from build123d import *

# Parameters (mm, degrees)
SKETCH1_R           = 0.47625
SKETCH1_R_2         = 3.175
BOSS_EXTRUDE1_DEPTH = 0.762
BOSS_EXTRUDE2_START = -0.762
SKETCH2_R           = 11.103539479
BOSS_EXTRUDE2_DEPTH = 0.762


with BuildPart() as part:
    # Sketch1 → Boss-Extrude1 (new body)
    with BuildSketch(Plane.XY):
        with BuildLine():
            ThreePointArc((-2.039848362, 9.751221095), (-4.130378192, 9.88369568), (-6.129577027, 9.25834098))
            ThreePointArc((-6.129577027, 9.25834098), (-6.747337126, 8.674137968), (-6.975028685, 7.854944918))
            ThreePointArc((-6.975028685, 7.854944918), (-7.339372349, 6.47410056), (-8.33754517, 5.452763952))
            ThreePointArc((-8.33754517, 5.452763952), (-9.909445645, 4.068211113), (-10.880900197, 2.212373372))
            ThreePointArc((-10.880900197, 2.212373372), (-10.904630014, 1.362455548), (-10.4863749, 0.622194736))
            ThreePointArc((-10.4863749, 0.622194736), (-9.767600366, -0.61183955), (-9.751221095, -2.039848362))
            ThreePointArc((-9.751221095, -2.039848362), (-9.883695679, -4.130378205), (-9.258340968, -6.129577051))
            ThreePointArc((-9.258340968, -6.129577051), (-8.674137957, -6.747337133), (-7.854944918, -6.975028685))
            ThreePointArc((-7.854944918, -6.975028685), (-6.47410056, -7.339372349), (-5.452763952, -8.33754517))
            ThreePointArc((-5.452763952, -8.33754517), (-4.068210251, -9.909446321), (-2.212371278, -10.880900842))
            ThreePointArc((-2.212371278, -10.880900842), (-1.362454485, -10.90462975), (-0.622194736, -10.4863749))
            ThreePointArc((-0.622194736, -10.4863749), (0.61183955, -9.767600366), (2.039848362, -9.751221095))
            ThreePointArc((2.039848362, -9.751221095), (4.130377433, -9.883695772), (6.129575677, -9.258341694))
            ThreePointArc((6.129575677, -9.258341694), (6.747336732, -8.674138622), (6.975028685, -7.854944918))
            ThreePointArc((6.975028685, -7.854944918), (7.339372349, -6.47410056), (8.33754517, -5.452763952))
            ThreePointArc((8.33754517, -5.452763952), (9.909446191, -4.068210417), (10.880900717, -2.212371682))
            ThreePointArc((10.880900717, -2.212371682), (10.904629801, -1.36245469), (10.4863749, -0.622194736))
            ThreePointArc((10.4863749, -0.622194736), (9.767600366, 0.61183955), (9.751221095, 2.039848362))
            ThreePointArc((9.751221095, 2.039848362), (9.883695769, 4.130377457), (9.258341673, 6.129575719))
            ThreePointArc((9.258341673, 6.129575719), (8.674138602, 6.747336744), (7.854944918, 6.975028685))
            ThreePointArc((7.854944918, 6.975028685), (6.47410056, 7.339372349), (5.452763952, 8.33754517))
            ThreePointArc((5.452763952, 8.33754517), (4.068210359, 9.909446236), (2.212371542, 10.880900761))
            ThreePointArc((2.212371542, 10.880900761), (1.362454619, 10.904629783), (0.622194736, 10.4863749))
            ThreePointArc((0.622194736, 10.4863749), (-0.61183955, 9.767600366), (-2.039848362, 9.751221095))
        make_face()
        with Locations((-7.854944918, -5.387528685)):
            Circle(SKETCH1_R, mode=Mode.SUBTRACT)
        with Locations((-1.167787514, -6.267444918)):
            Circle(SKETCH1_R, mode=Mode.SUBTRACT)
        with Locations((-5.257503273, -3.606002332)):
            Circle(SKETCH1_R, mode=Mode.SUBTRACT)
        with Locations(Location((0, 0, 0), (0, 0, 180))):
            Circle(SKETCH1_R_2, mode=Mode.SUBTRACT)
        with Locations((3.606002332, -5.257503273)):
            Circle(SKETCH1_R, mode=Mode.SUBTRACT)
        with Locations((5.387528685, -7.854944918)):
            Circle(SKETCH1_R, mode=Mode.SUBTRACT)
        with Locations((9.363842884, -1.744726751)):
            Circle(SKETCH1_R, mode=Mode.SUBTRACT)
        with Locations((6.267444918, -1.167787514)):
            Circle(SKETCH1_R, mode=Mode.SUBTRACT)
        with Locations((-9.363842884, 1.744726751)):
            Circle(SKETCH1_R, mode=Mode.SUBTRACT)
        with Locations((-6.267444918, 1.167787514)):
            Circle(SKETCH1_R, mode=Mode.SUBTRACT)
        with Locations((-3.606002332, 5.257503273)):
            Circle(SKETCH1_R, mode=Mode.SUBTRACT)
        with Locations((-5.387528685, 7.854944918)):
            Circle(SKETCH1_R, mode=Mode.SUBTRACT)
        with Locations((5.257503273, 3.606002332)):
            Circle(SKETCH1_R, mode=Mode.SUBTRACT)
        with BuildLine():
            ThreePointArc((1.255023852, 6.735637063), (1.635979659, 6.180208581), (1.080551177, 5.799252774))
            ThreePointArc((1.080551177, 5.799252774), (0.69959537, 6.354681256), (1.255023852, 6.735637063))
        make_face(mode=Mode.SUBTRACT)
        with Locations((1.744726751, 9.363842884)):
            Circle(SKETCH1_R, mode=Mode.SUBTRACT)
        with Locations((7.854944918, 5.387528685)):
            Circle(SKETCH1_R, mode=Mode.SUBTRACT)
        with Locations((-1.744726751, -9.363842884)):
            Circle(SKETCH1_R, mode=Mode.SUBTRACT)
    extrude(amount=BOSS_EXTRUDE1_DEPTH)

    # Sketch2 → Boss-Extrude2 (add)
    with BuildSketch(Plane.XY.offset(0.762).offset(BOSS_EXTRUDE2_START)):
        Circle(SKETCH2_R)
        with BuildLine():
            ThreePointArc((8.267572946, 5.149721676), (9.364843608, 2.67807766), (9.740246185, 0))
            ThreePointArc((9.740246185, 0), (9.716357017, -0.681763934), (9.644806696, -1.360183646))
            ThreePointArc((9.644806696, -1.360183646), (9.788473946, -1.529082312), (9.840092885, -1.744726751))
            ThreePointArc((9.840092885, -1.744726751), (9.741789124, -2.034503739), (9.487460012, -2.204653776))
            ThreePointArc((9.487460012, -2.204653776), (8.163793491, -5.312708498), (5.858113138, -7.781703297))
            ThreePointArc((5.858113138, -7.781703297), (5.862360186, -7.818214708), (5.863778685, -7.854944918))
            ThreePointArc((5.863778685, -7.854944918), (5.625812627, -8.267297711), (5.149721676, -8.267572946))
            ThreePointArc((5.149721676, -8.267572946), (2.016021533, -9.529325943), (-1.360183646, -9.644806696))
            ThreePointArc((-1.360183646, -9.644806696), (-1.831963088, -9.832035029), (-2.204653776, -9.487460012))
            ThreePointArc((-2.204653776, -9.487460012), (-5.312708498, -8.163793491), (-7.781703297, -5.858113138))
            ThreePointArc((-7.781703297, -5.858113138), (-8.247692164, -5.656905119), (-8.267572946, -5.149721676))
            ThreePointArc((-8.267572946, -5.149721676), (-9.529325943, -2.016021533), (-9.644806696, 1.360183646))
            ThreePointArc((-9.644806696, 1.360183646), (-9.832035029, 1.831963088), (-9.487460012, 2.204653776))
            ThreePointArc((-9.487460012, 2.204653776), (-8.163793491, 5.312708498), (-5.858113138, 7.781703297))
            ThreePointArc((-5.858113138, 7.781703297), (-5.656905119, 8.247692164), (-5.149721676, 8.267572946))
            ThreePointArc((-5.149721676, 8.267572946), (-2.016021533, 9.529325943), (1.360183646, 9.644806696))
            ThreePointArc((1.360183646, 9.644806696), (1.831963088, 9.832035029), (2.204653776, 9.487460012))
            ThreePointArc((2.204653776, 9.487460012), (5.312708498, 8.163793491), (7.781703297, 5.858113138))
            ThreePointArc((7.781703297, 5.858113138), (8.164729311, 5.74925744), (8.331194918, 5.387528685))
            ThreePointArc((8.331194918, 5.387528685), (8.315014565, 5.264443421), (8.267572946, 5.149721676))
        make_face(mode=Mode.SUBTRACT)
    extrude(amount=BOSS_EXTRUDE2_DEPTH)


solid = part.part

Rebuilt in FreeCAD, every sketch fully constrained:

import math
import FreeCAD as App
import Part
import Sketcher

V = App.Vector
Q = App.Units.Quantity

doc = App.newDocument("Part")
params = doc.addObject("Spreadsheet::Sheet", "Params")
for row, (alias, value) in enumerate([
    ("sketch1_diameter", "0.25 in"),
    ("sketch1_radius", "0.0625 in"),
    ("pad1_length", "0.03 in"),
    ("pad2_length", "0.03 in"),
], start=1):
    params.set(f"A{row}", alias)
    params.set(f"B{row}", "=" + value)
    params.setAlias(f"B{row}", alias)

body = doc.addObject("PartDesign::Body", "Body")

# Sketch on XY plane
sketch1 = body.newObject("Sketcher::SketchObject", "Sketch")
sketch1.AttachmentSupport = (doc.getObject("XY_Plane"), [""])
sketch1.MapMode = "FlatFace"
sketch1.addGeometry([
    Part.ArcOfCircle(Part.Circle(V(-3.44, 4.18, 0), V(0, 0, 1), 5.75), math.radians(76), math.radians(118)),  # 0
    Part.ArcOfCircle(Part.Circle(V(-5.39, 7.85, 0), V(0, 0, 1), 1.59), math.radians(118), math.radians(180)),  # 1
    Part.ArcOfCircle(Part.Circle(V(-9.77, 7.85, 0), V(0, 0, 1), 2.8), math.radians(-59), math.radians(0)),  # 2
    Part.ArcOfCircle(Part.Circle(V(-5.39, 0.52, 0), V(0, 0, 1), 5.75), math.radians(121), math.radians(163)),  # 3
    Part.ArcOfCircle(Part.Circle(V(-9.36, 1.74, 0), V(0, 0, 1), 1.59), math.radians(163), math.radians(225)),  # 4
    Part.ArcOfCircle(Part.Circle(V(-12.47, -1.36, 0), V(0, 0, 1), 2.8), math.radians(-14), math.radians(45)),  # 5
    Part.ArcOfCircle(Part.Circle(V(-4.18, -3.44, 0), V(0, 0, 1), 5.75), math.radians(166), math.radians(208)),  # 6
    Part.ArcOfCircle(Part.Circle(V(-7.85, -5.39, 0), V(0, 0, 1), 1.59), math.radians(-152), math.radians(-90)),  # 7
    Part.ArcOfCircle(Part.Circle(V(-7.85, -9.77, 0), V(0, 0, 1), 2.8), math.radians(31), math.radians(90)),  # 8
    Part.ArcOfCircle(Part.Circle(V(-0.52, -5.39, 0), V(0, 0, 1), 5.75), math.radians(-149), math.radians(-107)),  # 9
    Part.ArcOfCircle(Part.Circle(V(-1.74, -9.36, 0), V(0, 0, 1), 1.59), math.radians(-107), math.radians(-45)),  # 10
    Part.ArcOfCircle(Part.Circle(V(1.36, -12.47, 0), V(0, 0, 1), 2.8), math.radians(76), math.radians(135)),  # 11
    Part.ArcOfCircle(Part.Circle(V(3.44, -4.18, 0), V(0, 0, 1), 5.75), math.radians(-104), math.radians(-62)),  # 12
    Part.ArcOfCircle(Part.Circle(V(5.39, -7.85, 0), V(0, 0, 1), 1.59), math.radians(-62), math.radians(0)),  # 13
    Part.ArcOfCircle(Part.Circle(V(9.77, -7.85, 0), V(0, 0, 1), 2.8), math.radians(121), math.radians(180)),  # 14
    Part.ArcOfCircle(Part.Circle(V(5.39, -0.52, 0), V(0, 0, 1), 5.75), math.radians(-59), math.radians(-17)),  # 15
    Part.ArcOfCircle(Part.Circle(V(9.36, -1.74, 0), V(0, 0, 1), 1.59), math.radians(-17), math.radians(45)),  # 16
    Part.ArcOfCircle(Part.Circle(V(12.47, 1.36, 0), V(0, 0, 1), 2.8), math.radians(166), math.radians(225)),  # 17
    Part.ArcOfCircle(Part.Circle(V(4.18, 3.44, 0), V(0, 0, 1), 5.75), math.radians(-14), math.radians(28)),  # 18
    Part.ArcOfCircle(Part.Circle(V(7.85, 5.39, 0), V(0, 0, 1), 1.59), math.radians(28), math.radians(90)),  # 19
    Part.ArcOfCircle(Part.Circle(V(7.85, 9.77, 0), V(0, 0, 1), 2.8), math.radians(-149), math.radians(-90)),  # 20
    Part.ArcOfCircle(Part.Circle(V(0.52, 5.39, 0), V(0, 0, 1), 5.75), math.radians(31), math.radians(73)),  # 21
    Part.ArcOfCircle(Part.Circle(V(1.74, 9.36, 0), V(0, 0, 1), 1.59), math.radians(73), math.radians(135)),  # 22
    Part.ArcOfCircle(Part.Circle(V(-1.36, 12.47, 0), V(0, 0, 1), 2.8), math.radians(-104), math.radians(-45)),  # 23
    Part.Circle(V(-7.85, -5.39, 0), V(0, 0, 1), 0.48),  # 24
    Part.Circle(V(-1.74, -9.36, 0), V(0, 0, 1), 0.48),  # 25
    Part.Circle(V(-1.17, -6.27, 0), V(0, 0, 1), 0.48),  # 26
    Part.Circle(V(-5.26, -3.61, 0), V(0, 0, 1), 0.48),  # 27
    Part.Circle(V(3.61, -5.26, 0), V(0, 0, 1), 0.48),  # 28
    Part.Circle(V(5.39, -7.85, 0), V(0, 0, 1), 0.48),  # 29
    Part.Circle(V(6.27, -1.17, 0), V(0, 0, 1), 0.48),  # 30
    Part.Circle(V(9.36, -1.74, 0), V(0, 0, 1), 0.48),  # 31
    Part.Circle(V(-9.36, 1.74, 0), V(0, 0, 1), 0.48),  # 32
    Part.Circle(V(-6.27, 1.17, 0), V(0, 0, 1), 0.48),  # 33
    Part.Circle(V(-5.39, 7.85, 0), V(0, 0, 1), 0.48),  # 34
    Part.Circle(V(-3.61, 5.26, 0), V(0, 0, 1), 0.48),  # 35
    Part.Circle(V(0, 0, 0), V(0, 0, 1), 3.17),  # 36
    Part.Circle(V(5.26, 3.61, 0), V(0, 0, 1), 0.48),  # 37
    Part.Circle(V(1.17, 6.27, 0), V(0, 0, 1), 0.48),  # 38
    Part.Circle(V(1.74, 9.36, 0), V(0, 0, 1), 0.48),  # 39
    Part.Circle(V(7.85, 5.39, 0), V(0, 0, 1), 0.48),  # 40
], False)
sketch1.addConstraint([
    Sketcher.Constraint("Tangent", 0, 2, 1, 1),
    Sketcher.Constraint("Tangent", 1, 2, 2, 2),
    Sketcher.Constraint("Tangent", 2, 1, 3, 1),
    Sketcher.Constraint("Tangent", 3, 2, 4, 1),
    Sketcher.Constraint("Tangent", 4, 2, 5, 2),
    Sketcher.Constraint("Tangent", 5, 1, 6, 1),
    Sketcher.Constraint("Tangent", 6, 2, 7, 1),
    Sketcher.Constraint("Tangent", 7, 2, 8, 2),
    Sketcher.Constraint("Tangent", 8, 1, 9, 1),
    Sketcher.Constraint("Tangent", 9, 2, 10, 1),
    Sketcher.Constraint("Tangent", 10, 2, 11, 2),
    Sketcher.Constraint("Tangent", 11, 1, 12, 1),
    Sketcher.Constraint("Tangent", 12, 2, 13, 1),
    Sketcher.Constraint("Tangent", 13, 2, 14, 2),
    Sketcher.Constraint("Tangent", 14, 1, 15, 1),
    Sketcher.Constraint("Tangent", 15, 2, 16, 1),
    Sketcher.Constraint("Tangent", 16, 2, 17, 2),
    Sketcher.Constraint("Tangent", 17, 1, 18, 1),
    Sketcher.Constraint("Tangent", 18, 2, 19, 1),
    Sketcher.Constraint("Tangent", 19, 2, 20, 2),
    Sketcher.Constraint("Tangent", 20, 1, 21, 1),
    Sketcher.Constraint("Tangent", 21, 2, 22, 1),
    Sketcher.Constraint("Tangent", 22, 2, 23, 2),
    Sketcher.Constraint("Tangent", 23, 1, 0, 1),
    Sketcher.Constraint("Coincident", 36, 3, -1, 1),
    Sketcher.Constraint("Coincident", 24, 3, 7, 3),
    Sketcher.Constraint("Coincident", 25, 3, 10, 3),
    Sketcher.Constraint("Coincident", 29, 3, 13, 3),
    Sketcher.Constraint("Coincident", 31, 3, 16, 3),
    Sketcher.Constraint("Coincident", 32, 3, 4, 3),
    Sketcher.Constraint("Coincident", 34, 3, 1, 3),
    Sketcher.Constraint("Coincident", 39, 3, 22, 3),
    Sketcher.Constraint("Coincident", 40, 3, 19, 3),
    Sketcher.Constraint("Equal", 0, 3),
    Sketcher.Constraint("Equal", 1, 4),
    Sketcher.Constraint("Equal", 2, 5),
    Sketcher.Constraint("Equal", 3, 6),
    Sketcher.Constraint("Equal", 4, 7),
    Sketcher.Constraint("Equal", 5, 8),
    Sketcher.Constraint("Equal", 6, 9),
    Sketcher.Constraint("Equal", 7, 10),
    Sketcher.Constraint("Equal", 8, 11),
    Sketcher.Constraint("Equal", 9, 12),
    Sketcher.Constraint("Equal", 10, 13),
    Sketcher.Constraint("Equal", 11, 14),
    Sketcher.Constraint("Equal", 12, 15),
    Sketcher.Constraint("Equal", 13, 16),
    Sketcher.Constraint("Equal", 14, 17),
    Sketcher.Constraint("Equal", 15, 18),
    Sketcher.Constraint("Equal", 16, 19),
    Sketcher.Constraint("Equal", 17, 20),
    Sketcher.Constraint("Equal", 18, 21),
    Sketcher.Constraint("Equal", 19, 22),
    Sketcher.Constraint("Equal", 20, 23),
    Sketcher.Constraint("Equal", 24, 25),
    Sketcher.Constraint("Equal", 25, 26),
    Sketcher.Constraint("Equal", 26, 27),
    Sketcher.Constraint("Equal", 27, 28),
    Sketcher.Constraint("Equal", 28, 29),
    Sketcher.Constraint("Equal", 29, 30),
    Sketcher.Constraint("Equal", 30, 31),
    Sketcher.Constraint("Equal", 31, 32),
    Sketcher.Constraint("Equal", 32, 33),
    Sketcher.Constraint("Equal", 33, 34),
    Sketcher.Constraint("Equal", 34, 35),
    Sketcher.Constraint("Equal", 35, 37),
    Sketcher.Constraint("Equal", 37, 38),
    Sketcher.Constraint("Equal", 38, 39),
    Sketcher.Constraint("Equal", 39, 40),
    Sketcher.Constraint("Symmetric", 0, 3, 12, 3, -1, 1),
    Sketcher.Constraint("Symmetric", 2, 3, 14, 3, -1, 1),
    Sketcher.Constraint("Symmetric", 4, 3, 16, 3, -1, 1),
    Sketcher.Constraint("Symmetric", 6, 3, 18, 3, -1, 1),
    Sketcher.Constraint("Symmetric", 8, 3, 20, 3, -1, 1),
    Sketcher.Constraint("Symmetric", 10, 3, 22, 3, -1, 1),
    Sketcher.Constraint("Symmetric", 30, 3, 33, 3, -1, 1),
    Sketcher.Constraint("Symmetric", 28, 3, 35, 3, -1, 1),
    Sketcher.Constraint("Symmetric", 27, 3, 37, 3, -1, 1),
    Sketcher.Constraint("Symmetric", 26, 3, 38, 3, -1, 1),
    Sketcher.Constraint("Horizontal", 1, 3, 2, 3),
    Sketcher.Constraint("Horizontal", 7, 3, 9, 3),
    Sketcher.Constraint("Vertical", 1, 3, 3, 3),
    Sketcher.Constraint("Vertical", 7, 3, 8, 3),
    Sketcher.Constraint("Diameter", 36, Q("0.25 in")),
    Sketcher.Constraint("Radius", 1, Q("0.0625 in")),
    Sketcher.Constraint("Diameter", 24, Q("0.0375 in")),
    Sketcher.Constraint("Radius", 9, 5.748448),
    Sketcher.Constraint("Radius", 2, 2.798838),
    Sketcher.Constraint("DistanceX", 3, 2, -1, 1, 10.8809),
    Sketcher.Constraint("DistanceY", 9, 2, -1, 1, 10.880901),
    Sketcher.Constraint("DistanceX", 0, 3, -1, 1, 3.442572),
    Sketcher.Constraint("DistanceX", 1, 3, -1, 1, 5.387529),
    Sketcher.Constraint("DistanceX", 5, 3, -1, 1, 12.465452),
    Sketcher.Constraint("DistanceY", 6, 3, -1, 1, 3.442572),
    Sketcher.Constraint("DistanceY", 7, 3, -1, 1, 5.387529),
    Sketcher.Constraint("DistanceY", 11, 3, -1, 1, 12.465452),
    Sketcher.Constraint("DistanceX", 26, 3, -1, 1, 1.167788),
    Sketcher.Constraint("DistanceY", 26, 3, -1, 1, 6.267445),
    Sketcher.Constraint("DistanceX", 27, 3, -1, 1, 5.257503),
    Sketcher.Constraint("DistanceY", 27, 3, -1, 1, 3.606002),
    Sketcher.Constraint("DistanceX", -1, 1, 28, 3, 3.606002),
    Sketcher.Constraint("DistanceY", 28, 3, -1, 1, 5.257503),
    Sketcher.Constraint("DistanceX", -1, 1, 30, 3, 6.267445),
    Sketcher.Constraint("DistanceY", 30, 3, -1, 1, 1.167788),
])
sketch1.setExpression("Constraints[83]", "Params.sketch1_diameter")
sketch1.setExpression("Constraints[84]", "Params.sketch1_radius")
pad1 = body.newObject("PartDesign::Pad", "Pad")
pad1.Profile = sketch1
pad1.setExpression("Length", "Params.pad1_length")

# Sketch on XY plane
sketch2 = body.newObject("Sketcher::SketchObject", "Sketch001")
sketch2.AttachmentSupport = (doc.getObject("XY_Plane"), [""])
sketch2.MapMode = "FlatFace"
sketch2.addGeometry([
    Part.Circle(V(0, 0, 0), V(0, 0, 1), 11.1),  # 0
    Part.ArcOfCircle(Part.Circle(V(7.85, 5.39, 0), V(0, 0, 1), 0.48), math.radians(-30), math.radians(0)),  # 1
    Part.ArcOfCircle(Part.Circle(V(0, 0, 0), V(0, 0, 1), 9.74), math.radians(0), math.radians(32)),  # 2
    Part.ArcOfCircle(Part.Circle(V(0, 0, 0), V(0, 0, 1), 9.74), math.radians(-8.03), math.radians(0)),  # 3
    Part.ArcOfCircle(Part.Circle(V(9.36, -1.74, 0), V(0, 0, 1), 0.48), math.radians(0), math.radians(54)),  # 4
    Part.ArcOfCircle(Part.Circle(V(9.36, -1.74, 0), V(0, 0, 1), 0.48), math.radians(-75), math.radians(0)),  # 5
    Part.ArcOfCircle(Part.Circle(V(0, 0, 0), V(0, 0, 1), 9.74), math.radians(-53), math.radians(-13)),  # 6
    Part.ArcOfCircle(Part.Circle(V(5.39, -7.85, 0), V(0, 0, 1), 0.48), math.radians(0), math.radians(8.85)),  # 7
    Part.ArcOfCircle(Part.Circle(V(5.39, -7.85, 0), V(0, 0, 1), 0.48), math.radians(-120), math.radians(0)),  # 8
    Part.ArcOfCircle(Part.Circle(V(0, 0, 0), V(0, 0, 1), 9.74), math.radians(-98), math.radians(-58)),  # 9
    Part.ArcOfCircle(Part.Circle(V(-1.74, -9.36, 0), V(0, 0, 1), 0.48), math.radians(-165), math.radians(-36)),  # 10
    Part.ArcOfCircle(Part.Circle(V(0, 0, 0), V(0, 0, 1), 9.74), math.radians(-143), math.radians(-103)),  # 11
    Part.ArcOfCircle(Part.Circle(V(-7.85, -5.39, 0), V(0, 0, 1), 0.48), math.radians(150), math.radians(279)),  # 12
    Part.ArcOfCircle(Part.Circle(V(0, 0, 0), V(0, 0, 1), 9.74), math.radians(172), math.radians(212)),  # 13
    Part.ArcOfCircle(Part.Circle(V(-9.36, 1.74, 0), V(0, 0, 1), 0.48), math.radians(105), math.radians(234)),  # 14
    Part.ArcOfCircle(Part.Circle(V(0, 0, 0), V(0, 0, 1), 9.74), math.radians(127), math.radians(167)),  # 15
    Part.ArcOfCircle(Part.Circle(V(-5.39, 7.85, 0), V(0, 0, 1), 0.48), math.radians(60), math.radians(189)),  # 16
    Part.ArcOfCircle(Part.Circle(V(0, 0, 0), V(0, 0, 1), 9.74), math.radians(82), math.radians(122)),  # 17
    Part.ArcOfCircle(Part.Circle(V(1.74, 9.36, 0), V(0, 0, 1), 0.48), math.radians(15), math.radians(144)),  # 18
    Part.ArcOfCircle(Part.Circle(V(0, 0, 0), V(0, 0, 1), 9.74), math.radians(37), math.radians(77)),  # 19
    Part.ArcOfCircle(Part.Circle(V(7.85, 5.39, 0), V(0, 0, 1), 0.48), math.radians(0), math.radians(99)),  # 20
], False)
sketch2.addConstraint([
    Sketcher.Constraint("Coincident", 1, 1, 2, 2),
    Sketcher.Constraint("Tangent", 2, 1, 3, 2),
    Sketcher.Constraint("Coincident", 3, 1, 4, 2),
    Sketcher.Constraint("Tangent", 4, 1, 5, 2),
    Sketcher.Constraint("Coincident", 5, 1, 6, 2),
    Sketcher.Constraint("Coincident", 6, 1, 7, 2),
    Sketcher.Constraint("Tangent", 7, 1, 8, 2),
    Sketcher.Constraint("Coincident", 8, 1, 9, 2),
    Sketcher.Constraint("Coincident", 9, 1, 10, 2),
    Sketcher.Constraint("Coincident", 10, 1, 11, 2),
    Sketcher.Constraint("Coincident", 11, 1, 12, 2),
    Sketcher.Constraint("Coincident", 12, 1, 13, 2),
    Sketcher.Constraint("Coincident", 13, 1, 14, 2),
    Sketcher.Constraint("Coincident", 14, 1, 15, 2),
    Sketcher.Constraint("Coincident", 15, 1, 16, 2),
    Sketcher.Constraint("Coincident", 16, 1, 17, 2),
    Sketcher.Constraint("Coincident", 17, 1, 18, 2),
    Sketcher.Constraint("Coincident", 18, 1, 19, 2),
    Sketcher.Constraint("Coincident", 19, 1, 20, 2),
    Sketcher.Constraint("Tangent", 20, 1, 1, 2),
    Sketcher.Constraint("Coincident", 0, 3, -1, 1),
    Sketcher.Constraint("Coincident", 2, 3, -1, 1),
    Sketcher.Constraint("Coincident", 6, 3, -1, 1),
    Sketcher.Constraint("Coincident", 9, 3, -1, 1),
    Sketcher.Constraint("Coincident", 11, 3, -1, 1),
    Sketcher.Constraint("Coincident", 13, 3, -1, 1),
    Sketcher.Constraint("Coincident", 15, 3, -1, 1),
    Sketcher.Constraint("Coincident", 17, 3, -1, 1),
    Sketcher.Constraint("Coincident", 19, 3, -1, 1),
    Sketcher.Constraint("Equal", 2, 3),
    Sketcher.Constraint("Equal", 1, 4),
    Sketcher.Constraint("Equal", 4, 5),
    Sketcher.Constraint("Equal", 3, 6),
    Sketcher.Constraint("Equal", 5, 7),
    Sketcher.Constraint("Equal", 7, 8),
    Sketcher.Constraint("Equal", 6, 9),
    Sketcher.Constraint("Equal", 8, 10),
    Sketcher.Constraint("Equal", 9, 11),
    Sketcher.Constraint("Equal", 10, 12),
    Sketcher.Constraint("Equal", 11, 13),
    Sketcher.Constraint("Equal", 12, 14),
    Sketcher.Constraint("Equal", 13, 15),
    Sketcher.Constraint("Equal", 14, 16),
    Sketcher.Constraint("Equal", 15, 17),
    Sketcher.Constraint("Equal", 16, 18),
    Sketcher.Constraint("Equal", 17, 19),
    Sketcher.Constraint("Equal", 18, 20),
    Sketcher.Constraint("Symmetric", 1, 3, 12, 3, -1, 1),
    Sketcher.Constraint("Symmetric", 4, 3, 14, 3, -1, 1),
    Sketcher.Constraint("Symmetric", 7, 3, 16, 3, -1, 1),
    Sketcher.Constraint("Symmetric", 10, 3, 18, 3, -1, 1),
    Sketcher.Constraint("PointOnObject", 2, 1, -1),
    Sketcher.Constraint("Horizontal", 5, 3, 4, 1),
    Sketcher.Constraint("Horizontal", 8, 3, 7, 1),
    Sketcher.Constraint("Horizontal", 1, 3, 20, 1),
    Sketcher.Constraint("Diameter", 0, 22.207079),
    Sketcher.Constraint("Radius", 1, 0.47625),
    Sketcher.Constraint("Radius", 2, 9.740246),
    Sketcher.Constraint("DistanceX", 20, 3, 2, 1, 1.885301),
    Sketcher.Constraint("DistanceY", -1, 1, 1, 3, 5.387529),
    Sketcher.Constraint("DistanceX", -1, 1, 7, 3, 5.387529),
    Sketcher.Constraint("DistanceX", -1, 1, 5, 1, 9.48746),
    Sketcher.Constraint("DistanceX", -1, 1, 8, 1, 5.149722),
    Sketcher.Constraint("DistanceY", 10, 1, -1, 1, 9.48746),
    Sketcher.Constraint("DistanceY", 7, 3, 4, 3, 6.110218),
    Sketcher.Constraint("DistanceX", 12, 3, 10, 3, 6.110218),
])
pad2 = body.newObject("PartDesign::Pad", "Pad001")
pad2.Profile = sketch2
pad2.setExpression("Length", "Params.pad2_length")

doc.recompute()
